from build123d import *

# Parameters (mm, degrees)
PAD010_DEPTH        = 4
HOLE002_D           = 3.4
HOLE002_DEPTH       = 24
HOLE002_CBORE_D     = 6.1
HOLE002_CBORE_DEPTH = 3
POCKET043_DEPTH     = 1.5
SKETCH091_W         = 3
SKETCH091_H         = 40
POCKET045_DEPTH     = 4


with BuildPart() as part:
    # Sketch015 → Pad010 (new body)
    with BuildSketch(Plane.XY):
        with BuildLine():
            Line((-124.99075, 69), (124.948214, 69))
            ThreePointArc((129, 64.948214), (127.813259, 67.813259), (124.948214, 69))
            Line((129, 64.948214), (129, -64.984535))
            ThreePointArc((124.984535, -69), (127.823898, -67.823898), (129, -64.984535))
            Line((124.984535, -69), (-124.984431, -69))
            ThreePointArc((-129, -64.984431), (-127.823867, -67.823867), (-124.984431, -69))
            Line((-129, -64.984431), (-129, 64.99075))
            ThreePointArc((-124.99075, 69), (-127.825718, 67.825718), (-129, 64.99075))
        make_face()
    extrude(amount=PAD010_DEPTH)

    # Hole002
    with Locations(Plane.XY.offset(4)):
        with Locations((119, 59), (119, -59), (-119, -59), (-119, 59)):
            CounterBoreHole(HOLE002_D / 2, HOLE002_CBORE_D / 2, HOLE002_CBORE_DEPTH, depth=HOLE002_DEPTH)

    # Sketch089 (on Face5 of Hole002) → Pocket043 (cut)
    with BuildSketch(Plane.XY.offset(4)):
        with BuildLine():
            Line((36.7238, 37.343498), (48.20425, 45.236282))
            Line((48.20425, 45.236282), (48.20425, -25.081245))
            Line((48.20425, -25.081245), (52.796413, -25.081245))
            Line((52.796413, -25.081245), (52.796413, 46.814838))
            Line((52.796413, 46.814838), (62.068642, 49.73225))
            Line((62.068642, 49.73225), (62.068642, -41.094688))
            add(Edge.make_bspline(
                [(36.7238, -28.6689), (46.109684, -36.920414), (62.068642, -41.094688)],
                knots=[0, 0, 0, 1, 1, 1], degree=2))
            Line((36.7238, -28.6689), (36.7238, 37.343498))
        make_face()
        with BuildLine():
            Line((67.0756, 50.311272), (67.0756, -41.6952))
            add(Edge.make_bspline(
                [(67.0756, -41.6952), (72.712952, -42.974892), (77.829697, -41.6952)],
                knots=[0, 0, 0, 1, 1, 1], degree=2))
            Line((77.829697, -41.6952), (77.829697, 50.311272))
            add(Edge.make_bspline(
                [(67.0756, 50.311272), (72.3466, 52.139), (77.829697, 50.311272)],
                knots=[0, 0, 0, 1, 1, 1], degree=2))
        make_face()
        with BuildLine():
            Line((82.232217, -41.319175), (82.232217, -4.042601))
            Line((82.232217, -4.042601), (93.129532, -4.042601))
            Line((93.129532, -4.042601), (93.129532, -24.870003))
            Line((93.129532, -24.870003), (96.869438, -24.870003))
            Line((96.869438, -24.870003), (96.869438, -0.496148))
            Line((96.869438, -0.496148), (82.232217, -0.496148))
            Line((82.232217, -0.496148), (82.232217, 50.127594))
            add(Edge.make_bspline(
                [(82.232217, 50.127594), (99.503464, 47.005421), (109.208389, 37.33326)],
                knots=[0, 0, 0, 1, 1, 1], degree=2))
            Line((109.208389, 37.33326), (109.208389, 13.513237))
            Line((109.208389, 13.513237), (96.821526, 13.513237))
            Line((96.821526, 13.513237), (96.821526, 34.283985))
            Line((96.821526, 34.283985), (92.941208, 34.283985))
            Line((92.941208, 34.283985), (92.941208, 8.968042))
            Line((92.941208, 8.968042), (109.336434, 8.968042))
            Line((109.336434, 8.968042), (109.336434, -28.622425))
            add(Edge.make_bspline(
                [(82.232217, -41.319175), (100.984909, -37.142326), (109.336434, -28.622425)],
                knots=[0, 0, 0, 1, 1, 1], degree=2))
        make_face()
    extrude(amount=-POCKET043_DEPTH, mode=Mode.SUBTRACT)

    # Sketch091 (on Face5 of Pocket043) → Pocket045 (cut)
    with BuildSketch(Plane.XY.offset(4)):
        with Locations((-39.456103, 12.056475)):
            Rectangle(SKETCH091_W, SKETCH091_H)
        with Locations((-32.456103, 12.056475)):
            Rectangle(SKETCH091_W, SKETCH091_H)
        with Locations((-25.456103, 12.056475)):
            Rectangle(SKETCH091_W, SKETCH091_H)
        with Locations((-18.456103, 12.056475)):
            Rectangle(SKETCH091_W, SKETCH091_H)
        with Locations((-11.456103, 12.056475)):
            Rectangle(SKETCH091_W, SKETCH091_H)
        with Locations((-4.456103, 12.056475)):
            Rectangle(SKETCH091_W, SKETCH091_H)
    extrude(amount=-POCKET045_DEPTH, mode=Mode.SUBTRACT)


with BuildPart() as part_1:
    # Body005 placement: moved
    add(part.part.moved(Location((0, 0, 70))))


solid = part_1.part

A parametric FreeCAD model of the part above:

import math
import FreeCAD as App
import Part
import Sketcher
from FreeCAD import Vector
Q = App.Units.Quantity

doc = App.newDocument("Part")
body = doc.addObject("PartDesign::Body", "Body")

sketch1 = body.newObject("Sketcher::SketchObject", "Sketch")
sketch1.AttachmentSupport = (doc.getObject("XY_Plane"), [""])
sketch1.MapMode = "FlatFace"
sketch1.addGeometry([
    Part.LineSegment(Vector(124.9, 69, 0), Vector(-125, 69, 0)),
    Part.ArcOfCircle(Part.Circle(Vector(-125, 65, 0), Vector(0, 0, 1), 4), math.radians(90), math.radians(180)),
    Part.LineSegment(Vector(-129, 65, 0), Vector(-129, -65, 0)),
    Part.ArcOfCircle(Part.Circle(Vector(-125, -65, 0), Vector(0, 0, 1), 4), math.radians(-180), math.radians(-90)),
    Part.LineSegment(Vector(-125, -69, 0), Vector(125, -69, 0)),
    Part.ArcOfCircle(Part.Circle(Vector(125, -65, 0), Vector(0, 0, 1), 4), math.radians(-90), math.radians(0)),
    Part.LineSegment(Vector(129, -65, 0), Vector(129, 64.9, 0)),
    Part.ArcOfCircle(Part.Circle(Vector(124.9, 64.9, 0), Vector(0, 0, 1), 4.1), math.radians(0), math.radians(90)),
], False)
sketch1.addConstraint([
    Sketcher.Constraint("Tangent", 0, 2, 1, 1),
    Sketcher.Constraint("Tangent", 1, 2, 2, 1),
    Sketcher.Constraint("Tangent", 2, 2, 3, 1),
    Sketcher.Constraint("Tangent", 3, 2, 4, 1),
    Sketcher.Constraint("Tangent", 4, 2, 5, 1),
    Sketcher.Constraint("Tangent", 5, 2, 6, 1),
    Sketcher.Constraint("Tangent", 6, 2, 7, 1),
    Sketcher.Constraint("Tangent", 7, 2, 0, 1),
    Sketcher.Constraint("Horizontal", 0),
    Sketcher.Constraint("Vertical", 2),
    Sketcher.Constraint("Horizontal", 4),
    Sketcher.Constraint("Vertical", 6),
    Sketcher.Constraint("DistanceY", -1, 1, 0, 2, Q("69 mm")),
    Sketcher.Constraint("DistanceX", 1, 2, -1, 1, Q("129 mm")),
    Sketcher.Constraint("DistanceY", 3, 2, -1, 1, Q("69 mm")),
    Sketcher.Constraint("DistanceX", -1, 1, 5, 2, Q("129 mm")),
    Sketcher.Constraint("Radius", 1, Q("4.00925 mm")),
    Sketcher.Constraint("Radius", 3, Q("4.015569 mm")),
    Sketcher.Constraint("Radius", 5, Q("4.015463 mm")),
    Sketcher.Constraint("Radius", 7, Q("4.051787 mm")),
])
pad1 = body.newObject("PartDesign::Pad", "Pad")
pad1.Profile = sketch1
pad1.Length = 4

sketch2 = body.newObject("Sketcher::SketchObject", "Sketch001")
sketch2.AttachmentSupport = (doc.getObject("XY_Plane"), [""])
sketch2.MapMode = "FlatFace"
sketch2.AttachmentOffset = App.Placement(Vector(0, 0, 4), App.Rotation())
sketch2.addGeometry([
    Part.Circle(Vector(119, 59, 0), Vector(0, 0, 1), 1.7),
    Part.Circle(Vector(119, -59, 0), Vector(0, 0, 1), 1.7),
    Part.Circle(Vector(-119, -59, 0), Vector(0, 0, 1), 1.7),
    Part.Circle(Vector(-119, 59, 0), Vector(0, 0, 1), 1.7),
], False)
sketch2.addConstraint([
    Sketcher.Constraint("Equal", 0, 1),
    Sketcher.Constraint("Equal", 1, 2),
    Sketcher.Constraint("Equal", 2, 3),
    Sketcher.Constraint("Symmetric", 0, 3, 2, 3, -1, 1),
    Sketcher.Constraint("Symmetric", 1, 3, 3, 3, -1, 1),
    Sketcher.Constraint("Symmetric", 1, 3, 2, 3, -2),
    Sketcher.Constraint("Diameter", 0, Q("3.4 mm")),
    Sketcher.Constraint("DistanceX", -1, 1, 0, 3, Q("119 mm")),
    Sketcher.Constraint("DistanceY", -1, 1, 0, 3, Q("59 mm")),
])
doc.recompute()
hole = body.newObject("PartDesign::Hole", "Hole")
hole.Profile = sketch2
hole.ThreadType = "None"
hole.Diameter = 3.4
hole.DepthType = "Dimension"
hole.Depth = 24
hole.DrillPoint = "Flat"
hole.HoleCutType = "Counterbore"
hole.HoleCutDiameter = 6.1
hole.HoleCutDepth = 3

sketch3 = body.newObject("Sketcher::SketchObject", "Sketch002")
sketch3.AttachmentSupport = (doc.getObject("XY_Plane"), [""])
sketch3.MapMode = "FlatFace"
sketch3.AttachmentOffset = App.Placement(Vector(0, 0, 4), App.Rotation())
sketch3.addGeometry([
    Part.LineSegment(Vector(48.20425, 45.236282, 0), Vector(36.7238, 37.343498, 0)),
    Part.LineSegment(Vector(36.7238, 37.343498, 0), Vector(36.7238, -28.6689, 0)),
    Part.BSplineCurve([Vector(36.7238, -28.6689, 0), Vector(46.109684, -36.920414, 0), Vector(62.068642, -41.094688, 0)], [3, 3], [0, 1], False, 2, [1, 1, 1], False),
    Part.LineSegment(Vector(62.068642, -41.094688, 0), Vector(62.068642, 49.73225, 0)),
    Part.LineSegment(Vector(62.068642, 49.73225, 0), Vector(52.796413, 46.814838, 0)),
    Part.LineSegment(Vector(52.796413, 46.814838, 0), Vector(52.796413, -25.081245, 0)),
    Part.LineSegment(Vector(52.796413, -25.081245, 0), Vector(48.20425, -25.081245, 0)),
    Part.LineSegment(Vector(48.20425, -25.081245, 0), Vector(48.20425, 45.236282, 0)),
    Part.LineSegment(Vector(67.0756, 50.311272, 0), Vector(67.0756, -41.6952, 0)),
    Part.BSplineCurve([Vector(67.0756, -41.6952, 0), Vector(72.712952, -42.974892, 0), Vector(77.829697, -41.6952, 0)], [3, 3], [0, 1], False, 2, [1, 1, 1], False),
    Part.LineSegment(Vector(77.829697, -41.6952, 0), Vector(77.829697, 50.311272, 0)),
    Part.BSplineCurve([Vector(67.0756, 50.311272, 0), Vector(72.3466, 52.139, 0), Vector(77.829697, 50.311272, 0)], [3, 3], [0, 1], False, 2, [1, 1, 1], False),
    Part.LineSegment(Vector(82.232217, -4.042601, 0), Vector(82.232217, -41.319175, 0)),
    Part.BSplineCurve([Vector(82.232217, -41.319175, 0), Vector(100.984909, -37.142326, 0), Vector(109.336434, -28.622425, 0)], [3, 3], [0, 1], False, 2, [1, 1, 1], False),
    Part.LineSegment(Vector(109.336434, -28.622425, 0), Vector(109.336434, 8.968042, 0)),
    Part.LineSegment(Vector(109.336434, 8.968042, 0), Vector(92.941208, 8.968042, 0)),
    Part.LineSegment(Vector(92.941208, 8.968042, 0), Vector(92.941208, 34.283985, 0)),
    Part.LineSegment(Vector(92.941208, 34.283985, 0), Vector(96.821526, 34.283985, 0)),
    Part.LineSegment(Vector(96.821526, 34.283985, 0), Vector(96.821526, 13.513237, 0)),
    Part.LineSegment(Vector(96.821526, 13.513237, 0), Vector(109.208389, 13.513237, 0)),
    Part.LineSegment(Vector(109.208389, 13.513237, 0), Vector(109.208389, 37.33326, 0)),
    Part.BSplineCurve([Vector(82.232217, 50.127594, 0), Vector(99.503464, 47.005421, 0), Vector(109.208389, 37.33326, 0)], [3, 3], [0, 1], False, 2, [1, 1, 1], False),
    Part.LineSegment(Vector(82.232217, 50.127594, 0), Vector(82.232217, -0.496148, 0)),
    Part.LineSegment(Vector(82.232217, -0.496148, 0), Vector(96.869438, -0.496148, 0)),
    Part.LineSegment(Vector(96.869438, -0.496148, 0), Vector(96.869438, -24.870003, 0)),
    Part.LineSegment(Vector(96.869438, -24.870003, 0), Vector(93.129532, -24.870003, 0)),
    Part.LineSegment(Vector(93.129532, -24.870003, 0), Vector(93.129532, -4.042601, 0)),
    Part.LineSegment(Vector(93.129532, -4.042601, 0), Vector(82.232217, -4.042601, 0)),
], False)
sketch3.addConstraint([
    Sketcher.Constraint("Block", 2),
    Sketcher.Constraint("Block", 9),
    Sketcher.Constraint("Block", 11),
    Sketcher.Constraint("Block", 13),
    Sketcher.Constraint("Block", 21),
    Sketcher.Constraint("Coincident", 0, 2, 1, 1),
    Sketcher.Constraint("Coincident", 1, 2, 2, 1),
    Sketcher.Constraint("Coincident", 2, 2, 3, 1),
    Sketcher.Constraint("Coincident", 3, 2, 4, 1),
    Sketcher.Constraint("Coincident", 4, 2, 5, 1),
    Sketcher.Constraint("Coincident", 5, 2, 6, 1),
    Sketcher.Constraint("Coincident", 6, 2, 7, 1),
    Sketcher.Constraint("Coincident", 7, 2, 0, 1),
    Sketcher.Constraint("Coincident", 8, 2, 9, 1),
    Sketcher.Constraint("Coincident", 9, 2, 10, 1),
    Sketcher.Constraint("Coincident", 10, 2, 11, 2),
    Sketcher.Constraint("Coincident", 11, 1, 8, 1),
    Sketcher.Constraint("Coincident", 12, 2, 13, 1),
    Sketcher.Constraint("Coincident", 13, 2, 14, 1),
    Sketcher.Constraint("Coincident", 14, 2, 15, 1),
    Sketcher.Constraint("Coincident", 15, 2, 16, 1),
    Sketcher.Constraint("Coincident", 16, 2, 17, 1),
    Sketcher.Constraint("Coincident", 17, 2, 18, 1),
    Sketcher.Constraint("Coincident", 18, 2, 19, 1),
    Sketcher.Constraint("Coincident", 19, 2, 20, 1),
    Sketcher.Constraint("Coincident", 20, 2, 21, 2),
    Sketcher.Constraint("Coincident", 21, 1, 22, 1),
    Sketcher.Constraint("Coincident", 22, 2, 23, 1),
    Sketcher.Constraint("Coincident", 23, 2, 24, 1),
    Sketcher.Constraint("Coincident", 24, 2, 25, 1),
    Sketcher.Constraint("Coincident", 25, 2, 26, 1),
    Sketcher.Constraint("Coincident", 26, 2, 27, 1),
    Sketcher.Constraint("Coincident", 27, 2, 12, 1),
    Sketcher.Constraint("Vertical", 1),
    Sketcher.Constraint("Vertical", 3),
    Sketcher.Constraint("Vertical", 5),
    Sketcher.Constraint("Horizontal", 6),
    Sketcher.Constraint("Vertical", 7),
    Sketcher.Constraint("Vertical", 12),
    Sketcher.Constraint("Vertical", 14),
    Sketcher.Constraint("Horizontal", 15),
    Sketcher.Constraint("Vertical", 16),
    Sketcher.Constraint("Horizontal", 17),
    Sketcher.Constraint("Vertical", 18),
    Sketcher.Constraint("Horizontal", 19),
    Sketcher.Constraint("Vertical", 20),
    Sketcher.Constraint("Vertical", 22),
    Sketcher.Constraint("Horizontal", 23),
    Sketcher.Constraint("Vertical", 24),
    Sketcher.Constraint("Horizontal", 25),
    Sketcher.Constraint("Vertical", 26),
    Sketcher.Constraint("Horizontal", 27),
    Sketcher.Constraint("DistanceY", 26, 1, 26, 2, Q("20.827402 mm")),
    Sketcher.Constraint("DistanceX", 17, 1, 17, 2, Q("3.880318 mm")),
    Sketcher.Constraint("DistanceX", 23, 1, 23, 2, Q("14.637221 mm")),
    Sketcher.Constraint("DistanceY", 3, 1, 3, 2, Q("90.826938 mm")),
    Sketcher.Constraint("DistanceY", 18, 2, 18, 1, Q("20.770748 mm")),
    Sketcher.Constraint("DistanceY", 26, 2, -1, 1, Q("4.042601 mm")),
    Sketcher.Constraint("DistanceX", 26, 2, 14, 2, Q("16.206902 mm")),
    Sketcher.Constraint("Distance", 0, Q("13.931862 mm")),
    Sketcher.Constraint("DistanceX", 6, 2, 6, 1, Q("4.592163 mm")),
    Sketcher.Constraint("DistanceX", 15, 2, 15, 1, Q("16.395226 mm")),
    Sketcher.Constraint("DistanceY", 1, 2, 1, 1, Q("66.012398 mm")),
    Sketcher.Constraint("DistanceY", 5, 2, 5, 1, Q("71.896083 mm")),
    Sketcher.Constraint("DistanceY", 7, 1, 7, 2, Q("70.317527 mm")),
    Sketcher.Constraint("DistanceY", 14, 1, 14, 2, Q("37.590467 mm")),
    Sketcher.Constraint("DistanceY", 16, 1, 16, 2, Q("25.315943 mm")),
    Sketcher.Constraint("DistanceY", 22, 2, 22, 1, Q("50.623742 mm")),
    Sketcher.Constraint("DistanceY", -1, 1, 4, 2, Q("46.814838 mm")),
])
pocket1 = body.newObject("PartDesign::Pocket", "Pocket")
pocket1.Profile = sketch3
pocket1.Length = 1.5

sketch4 = body.newObject("Sketcher::SketchObject", "Sketch003")
sketch4.AttachmentSupport = (doc.getObject("XY_Plane"), [""])
sketch4.MapMode = "FlatFace"
sketch4.AttachmentOffset = App.Placement(Vector(0, 0, 4), App.Rotation())
sketch4.addGeometry([
    Part.LineSegment(Vector(-41, 32.1, 0), Vector(-41, -7.9, 0)),
    Part.LineSegment(Vector(-41, -7.9, 0), Vector(-38, -7.9, 0)),
    Part.LineSegment(Vector(-38, -7.9, 0), Vector(-38, 32.1, 0)),
    Part.LineSegment(Vector(-38, 32.1, 0), Vector(-41, 32.1, 0)),
    Part.LineSegment(Vector(-34, 32.1, 0), Vector(-34, -7.9, 0)),
    Part.LineSegment(Vector(-34, -7.9, 0), Vector(-31, -7.9, 0)),
    Part.LineSegment(Vector(-31, -7.9, 0), Vector(-31, 32.1, 0)),
    Part.LineSegment(Vector(-31, 32.1, 0), Vector(-34, 32.1, 0)),
    Part.LineSegment(Vector(-27, 32.1, 0), Vector(-27, -7.9, 0)),
    Part.LineSegment(Vector(-27, -7.9, 0), Vector(-24, -7.9, 0)),
    Part.LineSegment(Vector(-24, -7.9, 0), Vector(-24, 32.1, 0)),
    Part.LineSegment(Vector(-24, 32.1, 0), Vector(-27, 32.1, 0)),
    Part.LineSegment(Vector(-20, 32.1, 0), Vector(-20, -7.9, 0)),
    Part.LineSegment(Vector(-20, -7.9, 0), Vector(-17, -7.9, 0)),
    Part.LineSegment(Vector(-17, -7.9, 0), Vector(-17, 32.1, 0)),
    Part.LineSegment(Vector(-17, 32.1, 0), Vector(-20, 32.1, 0)),
    Part.LineSegment(Vector(-13, 32.1, 0), Vector(-13, -7.9, 0)),
    Part.LineSegment(Vector(-13, -7.9, 0), Vector(-10, -7.9, 0)),
    Part.LineSegment(Vector(-10, -7.9, 0), Vector(-10, 32.1, 0)),
    Part.LineSegment(Vector(-10, 32.1, 0), Vector(-13, 32.1, 0)),
    Part.LineSegment(Vector(-6, 32.1, 0), Vector(-6, -7.9, 0)),
    Part.LineSegment(Vector(-6, -7.9, 0), Vector(-3, -7.9, 0)),
    Part.LineSegment(Vector(-3, -7.9, 0), Vector(-3, 32.1, 0)),
    Part.LineSegment(Vector(-3, 32.1, 0), Vector(-6, 32.1, 0)),
], False)
sketch4.addConstraint([
    Sketcher.Constraint("Coincident", 0, 2, 1, 1),
    Sketcher.Constraint("Coincident", 1, 2, 2, 1),
    Sketcher.Constraint("Coincident", 2, 2, 3, 1),
    Sketcher.Constraint("Coincident", 3, 2, 0, 1),
    Sketcher.Constraint("Coincident", 4, 2, 5, 1),
    Sketcher.Constraint("Coincident", 5, 2, 6, 1),
    Sketcher.Constraint("Coincident", 6, 2, 7, 1),
    Sketcher.Constraint("Coincident", 7, 2, 4, 1),
    Sketcher.Constraint("Coincident", 8, 2, 9, 1),
    Sketcher.Constraint("Coincident", 9, 2, 10, 1),
    Sketcher.Constraint("Coincident", 10, 2, 11, 1),
    Sketcher.Constraint("Coincident", 11, 2, 8, 1),
    Sketcher.Constraint("Coincident", 12, 2, 13, 1),
    Sketcher.Constraint("Coincident", 13, 2, 14, 1),
    Sketcher.Constraint("Coincident", 14, 2, 15, 1),
    Sketcher.Constraint("Coincident", 15, 2, 12, 1),
    Sketcher.Constraint("Coincident", 16, 2, 17, 1),
    Sketcher.Constraint("Coincident", 17, 2, 18, 1),
    Sketcher.Constraint("Coincident", 18, 2, 19, 1),
    Sketcher.Constraint("Coincident", 19, 2, 16, 1),
    Sketcher.Constraint("Coincident", 20, 2, 21, 1),
    Sketcher.Constraint("Coincident", 21, 2, 22, 1),
    Sketcher.Constraint("Coincident", 22, 2, 23, 1),
    Sketcher.Constraint("Coincident", 23, 2, 20, 1),
    Sketcher.Constraint("Vertical", 0),
    Sketcher.Constraint("Horizontal", 1),
    Sketcher.Constraint("Vertical", 2),
    Sketcher.Constraint("Horizontal", 3),
    Sketcher.Constraint("Vertical", 4),
    Sketcher.Constraint("Horizontal", 5),
    Sketcher.Constraint("Vertical", 6),
    Sketcher.Constraint("Horizontal", 7),
    Sketcher.Constraint("Vertical", 8),
    Sketcher.Constraint("Horizontal", 9),
    Sketcher.Constraint("Vertical", 10),
    Sketcher.Constraint("Horizontal", 11),
    Sketcher.Constraint("Vertical", 12),
    Sketcher.Constraint("Horizontal", 13),
    Sketcher.Constraint("Vertical", 14),
    Sketcher.Constraint("Horizontal", 15),
    Sketcher.Constraint("Vertical", 16),
    Sketcher.Constraint("Horizontal", 17),
    Sketcher.Constraint("Vertical", 18),
    Sketcher.Constraint("Horizontal", 19),
    Sketcher.Constraint("Vertical", 20),
    Sketcher.Constraint("Horizontal", 21),
    Sketcher.Constraint("Vertical", 22),
    Sketcher.Constraint("Horizontal", 23),
    Sketcher.Constraint("Horizontal", 1, 2, 4, 2),
    Sketcher.Constraint("Horizontal", 3, 2, 6, 2),
    Sketcher.Constraint("Horizontal", 5, 2, 8, 2),
    Sketcher.Constraint("Horizontal", 7, 2, 10, 2),
    Sketcher.Constraint("Horizontal", 9, 2, 12, 2),
    Sketcher.Constraint("Horizontal", 11, 2, 14, 2),
    Sketcher.Constraint("Horizontal", 13, 2, 16, 2),
    Sketcher.Constraint("Horizontal", 15, 2, 18, 2),
    Sketcher.Constraint("Horizontal", 17, 2, 20, 2),
    Sketcher.Constraint("Horizontal", 19, 2, 22, 2),
    Sketcher.Constraint("Equal", 3, 5),
    Sketcher.Constraint("Equal", 7, 9),
    Sketcher.Constraint("Equal", 11, 13),
    Sketcher.Constraint("Equal", 15, 17),
    Sketcher.Constraint("Equal", 19, 21),
    Sketcher.Constraint("DistanceX", 1, 1, 1, 2, Q("3 mm")),
    Sketcher.Constraint("DistanceY", 0, 2, 0, 1, Q("40 mm")),
    Sketcher.Constraint("DistanceX", 1, 2, 4, 2, Q("4 mm")),
    Sketcher.Constraint("DistanceX", 5, 2, 8, 2, Q("4 mm")),
    Sketcher.Constraint("DistanceX", 9, 2, 12, 2, Q("4 mm")),
    Sketcher.Constraint("DistanceX", 13, 2, 16, 2, Q("4 mm")),
    Sketcher.Constraint("DistanceX", 17, 2, 20, 2, Q("4 mm")),
    Sketcher.Constraint("DistanceX", 0, 2, -1, 1, Q("40.956103 mm")),
    Sketcher.Constraint("DistanceY", 0, 2, -1, 1, Q("7.943525 mm")),
])
pocket2 = body.newObject("PartDesign::Pocket", "Pocket001")
pocket2.Profile = sketch4
pocket2.Length = 4
body2 = doc.addObject("PartDesign::Body", "Body001")
doc.recompute()

body.Placement = App.Placement(Vector(0, 0, 70), App.Rotation(Vector(0, 0, 1), 0))
boolean = body2.newObject("PartDesign::Boolean", "Boolean")
boolean.Type = "Fuse"
boolean.addObjects([body])

doc.recompute()
